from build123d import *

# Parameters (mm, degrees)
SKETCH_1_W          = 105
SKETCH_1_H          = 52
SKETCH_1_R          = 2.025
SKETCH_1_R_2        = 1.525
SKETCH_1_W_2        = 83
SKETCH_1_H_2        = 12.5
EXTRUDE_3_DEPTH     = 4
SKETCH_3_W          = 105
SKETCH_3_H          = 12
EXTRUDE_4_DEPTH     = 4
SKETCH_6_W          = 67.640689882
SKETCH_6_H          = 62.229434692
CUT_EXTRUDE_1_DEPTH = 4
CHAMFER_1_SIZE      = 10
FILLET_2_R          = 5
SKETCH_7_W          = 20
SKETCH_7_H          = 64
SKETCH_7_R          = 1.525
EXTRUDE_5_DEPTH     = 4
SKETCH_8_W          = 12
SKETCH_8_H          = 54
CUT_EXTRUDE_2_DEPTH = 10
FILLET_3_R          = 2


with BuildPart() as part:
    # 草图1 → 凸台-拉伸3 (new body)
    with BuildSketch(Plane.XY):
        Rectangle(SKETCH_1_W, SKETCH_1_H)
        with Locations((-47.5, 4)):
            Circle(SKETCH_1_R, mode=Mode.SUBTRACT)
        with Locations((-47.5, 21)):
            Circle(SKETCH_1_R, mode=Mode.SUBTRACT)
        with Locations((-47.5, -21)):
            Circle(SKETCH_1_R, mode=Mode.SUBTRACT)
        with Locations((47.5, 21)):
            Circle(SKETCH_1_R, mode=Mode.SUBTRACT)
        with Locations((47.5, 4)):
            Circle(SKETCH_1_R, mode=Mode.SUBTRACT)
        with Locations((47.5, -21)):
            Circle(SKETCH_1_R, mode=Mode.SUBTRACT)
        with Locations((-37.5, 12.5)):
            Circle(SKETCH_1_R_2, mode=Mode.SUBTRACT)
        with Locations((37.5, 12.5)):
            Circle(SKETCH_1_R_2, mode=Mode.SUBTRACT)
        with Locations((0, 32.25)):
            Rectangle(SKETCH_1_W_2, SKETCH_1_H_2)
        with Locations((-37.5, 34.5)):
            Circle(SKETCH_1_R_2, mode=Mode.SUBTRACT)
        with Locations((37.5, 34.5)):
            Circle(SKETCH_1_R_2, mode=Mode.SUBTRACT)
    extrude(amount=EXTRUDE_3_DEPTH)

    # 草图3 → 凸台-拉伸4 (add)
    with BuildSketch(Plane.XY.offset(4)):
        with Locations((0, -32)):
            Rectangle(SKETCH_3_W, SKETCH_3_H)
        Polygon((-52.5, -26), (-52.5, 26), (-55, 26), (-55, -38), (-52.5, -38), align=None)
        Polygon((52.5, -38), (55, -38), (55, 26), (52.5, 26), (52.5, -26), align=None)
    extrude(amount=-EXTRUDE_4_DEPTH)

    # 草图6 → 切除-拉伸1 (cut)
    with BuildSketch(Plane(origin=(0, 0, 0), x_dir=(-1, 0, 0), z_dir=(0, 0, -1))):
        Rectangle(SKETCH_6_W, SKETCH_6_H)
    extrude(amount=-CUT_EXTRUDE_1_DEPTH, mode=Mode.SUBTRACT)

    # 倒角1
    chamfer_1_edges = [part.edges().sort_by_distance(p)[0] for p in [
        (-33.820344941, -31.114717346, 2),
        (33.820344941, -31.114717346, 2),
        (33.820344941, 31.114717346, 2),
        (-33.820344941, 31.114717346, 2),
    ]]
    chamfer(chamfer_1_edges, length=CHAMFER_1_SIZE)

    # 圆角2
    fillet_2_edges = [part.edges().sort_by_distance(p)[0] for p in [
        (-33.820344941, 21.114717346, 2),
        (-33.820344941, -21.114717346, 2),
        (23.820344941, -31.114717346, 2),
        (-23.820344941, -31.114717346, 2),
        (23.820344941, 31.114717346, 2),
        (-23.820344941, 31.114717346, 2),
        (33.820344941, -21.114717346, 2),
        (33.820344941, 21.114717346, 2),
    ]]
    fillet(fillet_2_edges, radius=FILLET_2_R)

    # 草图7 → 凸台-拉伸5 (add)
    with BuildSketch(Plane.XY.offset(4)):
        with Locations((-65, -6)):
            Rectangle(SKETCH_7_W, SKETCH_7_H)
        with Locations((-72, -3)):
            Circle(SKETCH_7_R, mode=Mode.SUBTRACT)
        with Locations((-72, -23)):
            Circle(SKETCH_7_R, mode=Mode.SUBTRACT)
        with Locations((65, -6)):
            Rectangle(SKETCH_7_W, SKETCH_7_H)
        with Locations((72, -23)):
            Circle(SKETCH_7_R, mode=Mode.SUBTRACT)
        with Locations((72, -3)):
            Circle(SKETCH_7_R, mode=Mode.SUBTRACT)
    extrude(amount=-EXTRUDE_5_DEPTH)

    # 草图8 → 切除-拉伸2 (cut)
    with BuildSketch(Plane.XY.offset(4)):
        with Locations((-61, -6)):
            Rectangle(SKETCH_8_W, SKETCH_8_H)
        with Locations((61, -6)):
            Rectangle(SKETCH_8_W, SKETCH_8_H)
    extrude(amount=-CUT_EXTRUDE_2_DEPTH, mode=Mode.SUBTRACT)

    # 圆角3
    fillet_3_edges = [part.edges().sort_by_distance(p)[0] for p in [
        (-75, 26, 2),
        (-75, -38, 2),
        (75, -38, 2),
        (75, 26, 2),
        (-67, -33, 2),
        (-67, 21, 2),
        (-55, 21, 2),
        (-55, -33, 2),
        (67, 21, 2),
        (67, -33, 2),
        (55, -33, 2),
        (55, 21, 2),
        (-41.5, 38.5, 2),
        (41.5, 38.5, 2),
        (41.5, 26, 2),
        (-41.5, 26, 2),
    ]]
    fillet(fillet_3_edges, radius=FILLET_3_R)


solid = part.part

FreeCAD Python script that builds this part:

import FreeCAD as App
import Part
import Sketcher
Q = App.Units.Quantity


def edges_at(feature, points):
    """Names of the edges that pass closest to the given points."""
    edges = feature.Shape.Edges
    near = lambda p: min(range(len(edges)), key=lambda i: edges[i].distToShape(Part.Vertex(*p))[0])
    return sorted({f"Edge{near(p) + 1}" for p in points})


def add_polygon(sketch, points):
    """Adds a closed chain of lines whose ends are joined by coincident constraints."""
    first, n = sketch.GeometryCount, len(points)
    for a, b in zip(points, points[1:] + points[:1]):
        sketch.addGeometry(Part.LineSegment(App.Vector(*a, 0), App.Vector(*b, 0)), False)
    for i in range(n):
        sketch.addConstraint(Sketcher.Constraint("Coincident", first + i, 2, first + (i + 1) % n, 1))

doc = App.newDocument("Part")
body = doc.addObject("PartDesign::Body", "Body")

sketch1 = body.newObject("Sketcher::SketchObject", "Sketch")
sketch1.AttachmentSupport = (doc.getObject("XY_Plane"), [""])
sketch1.MapMode = "FlatFace"
add_polygon(sketch1, [(-52.5, 26), (-52.5, -26), (52.5, -26), (52.5, 26), (41.5, 26), (41.5, 38.5), (-41.5, 38.5), (-41.5, 26)])
sketch1.addGeometry(Part.Circle(App.Vector(-47.5, -21, 0), App.Vector(0, 0, 1), 2.025), False)
sketch1.addGeometry(Part.Circle(App.Vector(-47.5, 4, 0), App.Vector(0, 0, 1), 2.025), False)
sketch1.addGeometry(Part.Circle(App.Vector(47.5, -21, 0), App.Vector(0, 0, 1), 2.025), False)
sketch1.addGeometry(Part.Circle(App.Vector(47.5, 4, 0), App.Vector(0, 0, 1), 2.025), False)
sketch1.addGeometry(Part.Circle(App.Vector(-37.5, 12.5, 0), App.Vector(0, 0, 1), 1.525), False)
sketch1.addGeometry(Part.Circle(App.Vector(-47.5, 21, 0), App.Vector(0, 0, 1), 2.025), False)
sketch1.addGeometry(Part.Circle(App.Vector(-37.5, 34.5, 0), App.Vector(0, 0, 1), 1.525), False)
sketch1.addGeometry(Part.Circle(App.Vector(37.5, 12.5, 0), App.Vector(0, 0, 1), 1.525), False)
sketch1.addGeometry(Part.Circle(App.Vector(47.5, 21, 0), App.Vector(0, 0, 1), 2.025), False)
sketch1.addGeometry(Part.Circle(App.Vector(37.5, 34.5, 0), App.Vector(0, 0, 1), 1.525), False)
sketch1.addConstraint(Sketcher.Constraint("Vertical", 0))
sketch1.addConstraint(Sketcher.Constraint("Horizontal", 1))
sketch1.addConstraint(Sketcher.Constraint("Vertical", 2))
sketch1.addConstraint(Sketcher.Constraint("Horizontal", 3))
sketch1.addConstraint(Sketcher.Constraint("Vertical", 4))
sketch1.addConstraint(Sketcher.Constraint("Horizontal", 5))
sketch1.addConstraint(Sketcher.Constraint("Vertical", 6))
sketch1.addConstraint(Sketcher.Constraint("Horizontal", 7))
sketch1.addConstraint(Sketcher.Constraint("Equal", 8, 9))
sketch1.addConstraint(Sketcher.Constraint("Equal", 9, 10))
sketch1.addConstraint(Sketcher.Constraint("Equal", 10, 11))
sketch1.addConstraint(Sketcher.Constraint("Equal", 11, 13))
sketch1.addConstraint(Sketcher.Constraint("Equal", 12, 14))
sketch1.addConstraint(Sketcher.Constraint("Equal", 14, 15))
sketch1.addConstraint(Sketcher.Constraint("Equal", 13, 16))
sketch1.addConstraint(Sketcher.Constraint("Equal", 15, 17))
sketch1.addConstraint(Sketcher.Constraint("Symmetric", 10, 3, 13, 3, -1, 1))
sketch1.addConstraint(Sketcher.Constraint("Symmetric", 8, 3, 16, 3, -1, 1))
sketch1.addConstraint(Sketcher.Constraint("Symmetric", 0, 2, 2, 2, -1, 1))
sketch1.addConstraint(Sketcher.Constraint("Symmetric", 8, 3, 10, 3, -2))
sketch1.addConstraint(Sketcher.Constraint("Symmetric", 9, 3, 11, 3, -2))
sketch1.addConstraint(Sketcher.Constraint("Symmetric", 12, 3, 15, 3, -2))
sketch1.addConstraint(Sketcher.Constraint("Symmetric", 14, 3, 17, 3, -2))
sketch1.addConstraint(Sketcher.Constraint("Symmetric", 3, 2, 6, 2, -2))
sketch1.addConstraint(Sketcher.Constraint("Vertical", 8, 3, 9, 3))
sketch1.addConstraint(Sketcher.Constraint("Vertical", 12, 3, 14, 3))
sketch1.addConstraint(Sketcher.Constraint("Diameter", 8, Q("4.05 mm")))
sketch1.addConstraint(Sketcher.Constraint("Diameter", 12, Q("3.05 mm")))
sketch1.addConstraint(Sketcher.Constraint("DistanceX", 1, 1, 1, 2, Q("105 mm")))
sketch1.addConstraint(Sketcher.Constraint("DistanceX", 3, 2, 3, 1, Q("11 mm")))
sketch1.addConstraint(Sketcher.Constraint("DistanceY", 0, 2, 0, 1, Q("52 mm")))
sketch1.addConstraint(Sketcher.Constraint("DistanceY", 4, 1, 4, 2, Q("12.5 mm")))
sketch1.addConstraint(Sketcher.Constraint("DistanceY", 8, 3, -1, 1, Q("21 mm")))
sketch1.addConstraint(Sketcher.Constraint("DistanceY", -1, 1, 9, 3, Q("4 mm")))
sketch1.addConstraint(Sketcher.Constraint("DistanceX", 8, 3, 10, 3, Q("95 mm")))
sketch1.addConstraint(Sketcher.Constraint("DistanceX", 9, 3, 12, 3, Q("10 mm")))
sketch1.addConstraint(Sketcher.Constraint("DistanceY", 12, 3, 14, 3, Q("22 mm")))
sketch1.addConstraint(Sketcher.Constraint("DistanceY", 17, 3, 4, 2, Q("4 mm")))
pad1 = body.newObject("PartDesign::Pad", "Pad")
pad1.Profile = sketch1
pad1.Length = 4

sketch2 = body.newObject("Sketcher::SketchObject", "Sketch001")
sketch2.AttachmentSupport = (doc.getObject("XY_Plane"), [""])
sketch2.MapMode = "FlatFace"
sketch2.AttachmentOffset = App.Placement(App.Vector(0, 0, 4), App.Rotation())
add_polygon(sketch2, [(52.5, -26), (-52.5, -26), (-52.5, 26), (-55, 26), (-55, -38), (55, -38), (55, 26), (52.5, 26)])
sketch2.addConstraint(Sketcher.Constraint("Horizontal", 0))
sketch2.addConstraint(Sketcher.Constraint("Vertical", 1))
sketch2.addConstraint(Sketcher.Constraint("Horizontal", 2))
sketch2.addConstraint(Sketcher.Constraint("Vertical", 3))
sketch2.addConstraint(Sketcher.Constraint("Horizontal", 4))
sketch2.addConstraint(Sketcher.Constraint("Vertical", 5))
sketch2.addConstraint(Sketcher.Constraint("Horizontal", 6))
sketch2.addConstraint(Sketcher.Constraint("Vertical", 7))
sketch2.addConstraint(Sketcher.Constraint("Symmetric", 0, 2, 6, 2, -1, 1))
sketch2.addConstraint(Sketcher.Constraint("Symmetric", 2, 2, 5, 2, -2))
sketch2.addConstraint(Sketcher.Constraint("DistanceX", 0, 2, 0, 1, Q("105 mm")))
sketch2.addConstraint(Sketcher.Constraint("DistanceX", 4, 1, 4, 2, Q("110 mm")))
sketch2.addConstraint(Sketcher.Constraint("DistanceY", 1, 1, 1, 2, Q("52 mm")))
sketch2.addConstraint(Sketcher.Constraint("DistanceY", 3, 2, 3, 1, Q("64 mm")))
pad2 = body.newObject("PartDesign::Pad", "Pad001")
pad2.Profile = sketch2
pad2.Length = 4
pad2.Reversed = True

sketch3 = body.newObject("Sketcher::SketchObject", "Sketch002")
sketch3.AttachmentSupport = (doc.getObject("XY_Plane"), [""])
sketch3.MapMode = "FlatFace"
add_polygon(sketch3, [(33.820345, 31.114717), (33.820345, -31.114717), (-33.820345, -31.114717), (-33.820345, 31.114717)])
sketch3.addConstraint(Sketcher.Constraint("Vertical", 0))
sketch3.addConstraint(Sketcher.Constraint("Horizontal", 1))
sketch3.addConstraint(Sketcher.Constraint("Vertical", 2))
sketch3.addConstraint(Sketcher.Constraint("Horizontal", 3))
sketch3.addConstraint(Sketcher.Constraint("Symmetric", 0, 2, 2, 2, -1, 1))
sketch3.addConstraint(Sketcher.Constraint("DistanceX", 1, 2, 1, 1, Q("67.64069 mm")))
sketch3.addConstraint(Sketcher.Constraint("DistanceY", 0, 2, 0, 1, Q("62.229435 mm")))
pocket1 = body.newObject("PartDesign::Pocket", "Pocket")
pocket1.Profile = sketch3
pocket1.Length = 4
pocket1.Reversed = True
doc.recompute()

chamfer = body.newObject("PartDesign::Chamfer", "Chamfer")
chamfer.Base = (pocket1, edges_at(pocket1, [
    (-33.82, -31.115, 2),
    (33.82, -31.115, 2),
    (33.82, 31.115, 2),
    (-33.82, 31.115, 2),
]))
chamfer.Size = 10
doc.recompute()

fillet = body.newObject("PartDesign::Fillet", "Fillet")
fillet.Base = (chamfer, edges_at(chamfer, [
    (-33.82, 21.115, 2),
    (-33.82, -21.115, 2),
    (23.82, -31.115, 2),
    (-23.82, -31.115, 2),
    (23.82, 31.115, 2),
    (-23.82, 31.115, 2),
    (33.82, -21.115, 2),
    (33.82, 21.115, 2),
]))
fillet.Radius = 5

sketch4 = body.newObject("Sketcher::SketchObject", "Sketch003")
sketch4.AttachmentSupport = (doc.getObject("XY_Plane"), [""])
sketch4.MapMode = "FlatFace"
sketch4.AttachmentOffset = App.Placement(App.Vector(0, 0, 4), App.Rotation())
add_polygon(sketch4, [(-75, 26), (-75, -38), (-55, -38), (-55, 26)])
sketch4.addGeometry(Part.Circle(App.Vector(-72, -23, 0), App.Vector(0, 0, 1), 1.525), False)
sketch4.addGeometry(Part.Circle(App.Vector(-72, -3, 0), App.Vector(0, 0, 1), 1.525), False)
add_polygon(sketch4, [(55, 26), (55, -38), (75, -38), (75, 26)])
sketch4.addGeometry(Part.Circle(App.Vector(72, -23, 0), App.Vector(0, 0, 1), 1.525), False)
sketch4.addGeometry(Part.Circle(App.Vector(72, -3, 0), App.Vector(0, 0, 1), 1.525), False)
sketch4.addConstraint(Sketcher.Constraint("Vertical", 0))
sketch4.addConstraint(Sketcher.Constraint("Horizontal", 1))
sketch4.addConstraint(Sketcher.Constraint("Vertical", 2))
sketch4.addConstraint(Sketcher.Constraint("Horizontal", 3))
sketch4.addConstraint(Sketcher.Constraint("Vertical", 6))
sketch4.addConstraint(Sketcher.Constraint("Horizontal", 7))
sketch4.addConstraint(Sketcher.Constraint("Vertical", 8))
sketch4.addConstraint(Sketcher.Constraint("Horizontal", 9))
sketch4.addConstraint(Sketcher.Constraint("Equal", 4, 5))
sketch4.addConstraint(Sketcher.Constraint("Equal", 5, 10))
sketch4.addConstraint(Sketcher.Constraint("Equal", 10, 11))
sketch4.addConstraint(Sketcher.Constraint("Symmetric", 4, 3, 10, 3, -2))
sketch4.addConstraint(Sketcher.Constraint("Symmetric", 5, 3, 11, 3, -2))
sketch4.addConstraint(Sketcher.Constraint("Symmetric", 1, 2, 6, 2, -2))
sketch4.addConstraint(Sketcher.Constraint("Symmetric", 3, 2, 8, 2, -2))
sketch4.addConstraint(Sketcher.Constraint("Vertical", 4, 3, 5, 3))
sketch4.addConstraint(Sketcher.Constraint("Diameter", 4, Q("3.05 mm")))
sketch4.addConstraint(Sketcher.Constraint("DistanceX", 1, 1, 1, 2, Q("20 mm")))
sketch4.addConstraint(Sketcher.Constraint("DistanceY", 0, 2, 0, 1, Q("64 mm")))
sketch4.addConstraint(Sketcher.Constraint("DistanceX", 4, 3, -1, 1, Q("72 mm")))
sketch4.addConstraint(Sketcher.Constraint("DistanceY", 4, 3, -1, 1, Q("23 mm")))
sketch4.addConstraint(Sketcher.Constraint("DistanceY", 5, 3, -1, 1, Q("3 mm")))
sketch4.addConstraint(Sketcher.Constraint("DistanceX", 0, 2, -1, 1, Q("75 mm")))
sketch4.addConstraint(Sketcher.Constraint("DistanceY", 0, 2, -1, 1, Q("38 mm")))
pad3 = body.newObject("PartDesign::Pad", "Pad002")
pad3.Profile = sketch4
pad3.Length = 4
pad3.Reversed = True

sketch5 = body.newObject("Sketcher::SketchObject", "Sketch004")
sketch5.AttachmentSupport = (doc.getObject("XY_Plane"), [""])
sketch5.MapMode = "FlatFace"
sketch5.AttachmentOffset = App.Placement(App.Vector(0, 0, 4), App.Rotation())
add_polygon(sketch5, [(-67, 21), (-67, -33), (-55, -33), (-55, 21)])
add_polygon(sketch5, [(55, 21), (55, -33), (67, -33), (67, 21)])
sketch5.addConstraint(Sketcher.Constraint("Vertical", 0))
sketch5.addConstraint(Sketcher.Constraint("Horizontal", 1))
sketch5.addConstraint(Sketcher.Constraint("Vertical", 2))
sketch5.addConstraint(Sketcher.Constraint("Horizontal", 3))
sketch5.addConstraint(Sketcher.Constraint("Vertical", 4))
sketch5.addConstraint(Sketcher.Constraint("Horizontal", 5))
sketch5.addConstraint(Sketcher.Constraint("Vertical", 6))
sketch5.addConstraint(Sketcher.Constraint("Horizontal", 7))
sketch5.addConstraint(Sketcher.Constraint("Symmetric", 1, 2, 4, 2, -2))
sketch5.addConstraint(Sketcher.Constraint("Symmetric", 3, 2, 6, 2, -2))
sketch5.addConstraint(Sketcher.Constraint("DistanceX", 1, 1, 1, 2, Q("12 mm")))
sketch5.addConstraint(Sketcher.Constraint("DistanceY", 0, 2, 0, 1, Q("54 mm")))
sketch5.addConstraint(Sketcher.Constraint("DistanceX", 0, 2, -1, 1, Q("67 mm")))
sketch5.addConstraint(Sketcher.Constraint("DistanceY", 0, 2, -1, 1, Q("33 mm")))
pocket2 = body.newObject("PartDesign::Pocket", "Pocket001")
pocket2.Profile = sketch5
pocket2.Length = 10
doc.recompute()

fillet2 = body.newObject("PartDesign::Fillet", "Fillet001")
fillet2.Base = (pocket2, edges_at(pocket2, [
    (-75, 26, 2),
    (-75, -38, 2),
    (75, -38, 2),
    (75, 26, 2),
    (-67, -33, 2),
    (-67, 21, 2),
    (-55, 21, 2),
    (-55, -33, 2),
    (67, 21, 2),
    (67, -33, 2),
    (55, -33, 2),
    (55, 21, 2),
    (-41.5, 38.5, 2),
    (41.5, 38.5, 2),
    (41.5, 26, 2),
    (-41.5, 26, 2),
]))
fillet2.Radius = 2

doc.recompute()
